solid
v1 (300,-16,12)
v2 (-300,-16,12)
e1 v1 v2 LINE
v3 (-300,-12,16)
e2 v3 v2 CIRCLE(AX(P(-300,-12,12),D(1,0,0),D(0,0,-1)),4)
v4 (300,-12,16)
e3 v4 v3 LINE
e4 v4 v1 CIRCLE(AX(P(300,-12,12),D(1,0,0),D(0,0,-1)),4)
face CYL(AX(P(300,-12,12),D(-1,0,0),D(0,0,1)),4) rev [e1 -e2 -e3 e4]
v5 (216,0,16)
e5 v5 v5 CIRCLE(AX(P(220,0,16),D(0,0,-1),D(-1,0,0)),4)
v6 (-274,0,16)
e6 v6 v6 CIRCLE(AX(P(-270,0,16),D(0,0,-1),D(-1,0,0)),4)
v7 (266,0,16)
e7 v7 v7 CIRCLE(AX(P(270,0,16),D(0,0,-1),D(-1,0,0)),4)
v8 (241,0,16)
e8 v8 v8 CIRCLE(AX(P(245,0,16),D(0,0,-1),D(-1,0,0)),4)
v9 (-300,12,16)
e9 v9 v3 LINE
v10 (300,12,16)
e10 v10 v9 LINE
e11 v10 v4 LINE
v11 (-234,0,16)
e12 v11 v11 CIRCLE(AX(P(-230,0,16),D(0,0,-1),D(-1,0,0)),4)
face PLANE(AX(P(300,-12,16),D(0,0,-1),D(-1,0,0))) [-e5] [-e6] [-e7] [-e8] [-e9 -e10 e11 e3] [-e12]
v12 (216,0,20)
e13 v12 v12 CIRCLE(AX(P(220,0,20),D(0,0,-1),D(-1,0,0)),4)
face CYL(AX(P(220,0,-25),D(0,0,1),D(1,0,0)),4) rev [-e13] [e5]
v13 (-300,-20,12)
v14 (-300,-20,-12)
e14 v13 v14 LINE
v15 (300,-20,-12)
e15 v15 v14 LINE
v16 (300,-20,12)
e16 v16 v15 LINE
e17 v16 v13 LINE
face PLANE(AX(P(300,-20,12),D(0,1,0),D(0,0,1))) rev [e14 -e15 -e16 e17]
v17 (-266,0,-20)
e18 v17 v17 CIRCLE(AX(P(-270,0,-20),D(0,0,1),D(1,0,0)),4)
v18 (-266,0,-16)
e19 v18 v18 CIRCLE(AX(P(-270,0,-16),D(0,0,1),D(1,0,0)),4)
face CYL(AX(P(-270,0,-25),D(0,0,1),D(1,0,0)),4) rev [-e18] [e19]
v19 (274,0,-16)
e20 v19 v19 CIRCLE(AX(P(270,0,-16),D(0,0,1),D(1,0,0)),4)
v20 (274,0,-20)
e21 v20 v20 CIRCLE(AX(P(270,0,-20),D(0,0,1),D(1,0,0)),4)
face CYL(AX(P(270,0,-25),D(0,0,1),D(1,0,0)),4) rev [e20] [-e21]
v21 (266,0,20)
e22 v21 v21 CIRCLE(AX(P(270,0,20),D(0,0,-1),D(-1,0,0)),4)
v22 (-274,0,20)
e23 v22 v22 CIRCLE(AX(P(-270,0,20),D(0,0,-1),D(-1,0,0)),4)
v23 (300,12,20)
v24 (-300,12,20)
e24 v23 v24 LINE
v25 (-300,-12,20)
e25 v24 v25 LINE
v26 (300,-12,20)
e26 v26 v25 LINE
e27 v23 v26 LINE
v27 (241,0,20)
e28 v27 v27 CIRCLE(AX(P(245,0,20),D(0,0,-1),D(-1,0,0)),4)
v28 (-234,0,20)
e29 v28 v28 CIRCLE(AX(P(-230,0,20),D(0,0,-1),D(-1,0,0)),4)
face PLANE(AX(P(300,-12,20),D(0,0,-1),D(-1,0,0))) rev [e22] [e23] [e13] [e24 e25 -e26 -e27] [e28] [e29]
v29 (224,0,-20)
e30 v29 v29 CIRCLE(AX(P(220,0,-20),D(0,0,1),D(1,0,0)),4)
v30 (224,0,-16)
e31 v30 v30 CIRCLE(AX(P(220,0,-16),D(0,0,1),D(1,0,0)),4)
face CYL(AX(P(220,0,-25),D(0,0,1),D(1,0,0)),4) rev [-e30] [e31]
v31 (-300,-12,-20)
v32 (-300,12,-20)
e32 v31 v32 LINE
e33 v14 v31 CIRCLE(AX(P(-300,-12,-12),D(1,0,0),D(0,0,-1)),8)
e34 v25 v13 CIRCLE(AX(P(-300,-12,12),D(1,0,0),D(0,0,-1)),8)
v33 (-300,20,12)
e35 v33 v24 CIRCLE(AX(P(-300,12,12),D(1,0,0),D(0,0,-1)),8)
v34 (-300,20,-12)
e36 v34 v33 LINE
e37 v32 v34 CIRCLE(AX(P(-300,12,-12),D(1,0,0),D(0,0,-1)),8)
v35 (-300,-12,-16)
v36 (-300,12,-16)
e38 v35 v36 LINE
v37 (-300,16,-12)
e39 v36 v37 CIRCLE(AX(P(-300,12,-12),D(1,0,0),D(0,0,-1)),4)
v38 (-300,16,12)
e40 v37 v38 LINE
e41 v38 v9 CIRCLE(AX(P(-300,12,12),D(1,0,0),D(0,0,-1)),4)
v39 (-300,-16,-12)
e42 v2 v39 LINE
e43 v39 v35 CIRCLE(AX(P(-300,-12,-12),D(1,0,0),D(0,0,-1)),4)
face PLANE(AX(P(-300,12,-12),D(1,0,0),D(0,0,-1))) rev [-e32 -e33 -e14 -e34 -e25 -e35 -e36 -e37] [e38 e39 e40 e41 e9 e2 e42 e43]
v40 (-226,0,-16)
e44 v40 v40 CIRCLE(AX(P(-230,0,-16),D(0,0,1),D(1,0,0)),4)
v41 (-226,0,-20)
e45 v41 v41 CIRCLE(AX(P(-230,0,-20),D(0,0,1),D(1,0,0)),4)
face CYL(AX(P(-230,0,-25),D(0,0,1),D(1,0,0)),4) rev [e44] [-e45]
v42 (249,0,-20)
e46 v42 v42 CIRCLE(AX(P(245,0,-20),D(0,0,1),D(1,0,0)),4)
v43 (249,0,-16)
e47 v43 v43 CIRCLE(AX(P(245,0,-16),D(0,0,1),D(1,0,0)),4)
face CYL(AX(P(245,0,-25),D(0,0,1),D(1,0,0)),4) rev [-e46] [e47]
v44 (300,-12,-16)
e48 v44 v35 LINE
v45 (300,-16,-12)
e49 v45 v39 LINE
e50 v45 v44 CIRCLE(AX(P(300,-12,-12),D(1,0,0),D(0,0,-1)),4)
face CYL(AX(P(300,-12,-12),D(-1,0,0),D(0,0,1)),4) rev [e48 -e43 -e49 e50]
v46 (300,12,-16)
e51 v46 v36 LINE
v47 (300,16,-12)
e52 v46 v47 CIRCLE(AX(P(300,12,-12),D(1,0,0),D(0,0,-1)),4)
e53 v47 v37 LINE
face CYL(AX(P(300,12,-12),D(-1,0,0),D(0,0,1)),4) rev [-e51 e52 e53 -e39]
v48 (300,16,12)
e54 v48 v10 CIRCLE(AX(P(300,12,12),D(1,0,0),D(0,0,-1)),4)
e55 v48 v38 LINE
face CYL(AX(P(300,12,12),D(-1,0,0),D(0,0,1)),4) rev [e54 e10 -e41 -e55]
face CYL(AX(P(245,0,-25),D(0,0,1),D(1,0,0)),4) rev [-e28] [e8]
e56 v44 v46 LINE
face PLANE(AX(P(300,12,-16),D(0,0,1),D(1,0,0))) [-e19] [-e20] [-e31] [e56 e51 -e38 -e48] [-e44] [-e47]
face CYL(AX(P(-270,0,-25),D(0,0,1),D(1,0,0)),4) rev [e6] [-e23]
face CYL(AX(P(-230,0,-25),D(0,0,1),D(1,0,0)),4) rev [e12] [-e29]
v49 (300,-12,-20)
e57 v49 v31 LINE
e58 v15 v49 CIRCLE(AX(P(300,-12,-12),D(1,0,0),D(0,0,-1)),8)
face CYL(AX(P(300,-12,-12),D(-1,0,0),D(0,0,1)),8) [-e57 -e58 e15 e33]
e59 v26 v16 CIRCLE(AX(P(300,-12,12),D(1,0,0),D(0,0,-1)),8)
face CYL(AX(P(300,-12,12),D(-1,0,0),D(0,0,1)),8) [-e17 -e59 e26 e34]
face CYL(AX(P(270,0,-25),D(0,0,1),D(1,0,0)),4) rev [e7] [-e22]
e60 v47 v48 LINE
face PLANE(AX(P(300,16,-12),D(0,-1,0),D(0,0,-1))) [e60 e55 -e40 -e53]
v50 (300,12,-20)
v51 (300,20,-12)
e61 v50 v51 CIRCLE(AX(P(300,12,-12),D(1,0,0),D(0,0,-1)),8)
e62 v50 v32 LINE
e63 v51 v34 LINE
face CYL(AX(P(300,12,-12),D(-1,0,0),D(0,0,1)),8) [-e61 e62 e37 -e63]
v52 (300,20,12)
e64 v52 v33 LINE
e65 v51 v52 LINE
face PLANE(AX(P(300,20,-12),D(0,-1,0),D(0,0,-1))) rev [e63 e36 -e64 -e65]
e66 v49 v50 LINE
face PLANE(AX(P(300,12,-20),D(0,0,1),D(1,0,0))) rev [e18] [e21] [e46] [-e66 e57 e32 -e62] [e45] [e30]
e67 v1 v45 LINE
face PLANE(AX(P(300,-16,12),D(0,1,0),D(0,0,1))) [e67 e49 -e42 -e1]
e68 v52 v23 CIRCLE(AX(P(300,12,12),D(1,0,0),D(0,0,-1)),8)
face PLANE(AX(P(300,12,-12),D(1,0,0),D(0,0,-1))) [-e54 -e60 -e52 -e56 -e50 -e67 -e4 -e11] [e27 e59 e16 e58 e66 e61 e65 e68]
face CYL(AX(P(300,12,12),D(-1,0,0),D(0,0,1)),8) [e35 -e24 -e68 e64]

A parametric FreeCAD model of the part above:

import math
import FreeCAD as App
import Part
import Sketcher
from FreeCAD import Vector

doc = App.newDocument("Part")
body = doc.addObject("PartDesign::Body", "Body")

# Sketch on YZ plane
sketch1 = body.newObject("Sketcher::SketchObject", "Sketch")
sketch1.AttachmentSupport = (doc.getObject("YZ_Plane"), [""])
sketch1.MapMode = "FlatFace"
sketch1.AttachmentOffset = App.Placement(Vector(0, 0, -300), App.Rotation())
sketch1.addGeometry(Part.LineSegment(Vector(-20, 12, 0), Vector(-20, -12, 0)), False)
sketch1.addGeometry(Part.ArcOfCircle(Part.Circle(Vector(-12, -12, 0), Vector(0, 0, 1), 8), math.radians(-180), math.radians(-90)), False)
sketch1.addGeometry(Part.LineSegment(Vector(-12, -20, 0), Vector(12, -20, 0)), False)
sketch1.addGeometry(Part.ArcOfCircle(Part.Circle(Vector(12, -12, 0), Vector(0, 0, 1), 8), math.radians(-90), math.radians(0)), False)
sketch1.addGeometry(Part.LineSegment(Vector(20, -12, 0), Vector(20, 12, 0)), False)
sketch1.addGeometry(Part.ArcOfCircle(Part.Circle(Vector(12, 12, 0), Vector(0, 0, 1), 8), math.radians(0), math.radians(90)), False)
sketch1.addGeometry(Part.LineSegment(Vector(12, 20, 0), Vector(-12, 20, 0)), False)
sketch1.addGeometry(Part.ArcOfCircle(Part.Circle(Vector(-12, 12, 0), Vector(0, 0, 1), 8), math.radians(90), math.radians(180)), False)
sketch1.addGeometry(Part.LineSegment(Vector(-16, -12, 0), Vector(-16, 12, 0)), False)
sketch1.addGeometry(Part.ArcOfCircle(Part.Circle(Vector(-12, 12, 0), Vector(0, 0, 1), 4), math.radians(90), math.radians(180)), False)
sketch1.addGeometry(Part.LineSegment(Vector(-12, 16, 0), Vector(12, 16, 0)), False)
sketch1.addGeometry(Part.ArcOfCircle(Part.Circle(Vector(12, 12, 0), Vector(0, 0, 1), 4), math.radians(0), math.radians(90)), False)
sketch1.addGeometry(Part.LineSegment(Vector(16, 12, 0), Vector(16, -12, 0)), False)
sketch1.addGeometry(Part.ArcOfCircle(Part.Circle(Vector(12, -12, 0), Vector(0, 0, 1), 4), math.radians(-90), math.radians(0)), False)
sketch1.addGeometry(Part.LineSegment(Vector(12, -16, 0), Vector(-12, -16, 0)), False)
sketch1.addGeometry(Part.ArcOfCircle(Part.Circle(Vector(-12, -12, 0), Vector(0, 0, 1), 4), math.radians(180), math.radians(270)), False)
sketch1.addConstraint(Sketcher.Constraint("Tangent", 0, 2, 1, 1))
sketch1.addConstraint(Sketcher.Constraint("Tangent", 1, 2, 2, 1))
sketch1.addConstraint(Sketcher.Constraint("Tangent", 2, 2, 3, 1))
sketch1.addConstraint(Sketcher.Constraint("Tangent", 3, 2, 4, 1))
sketch1.addConstraint(Sketcher.Constraint("Tangent", 4, 2, 5, 1))
sketch1.addConstraint(Sketcher.Constraint("Tangent", 5, 2, 6, 1))
sketch1.addConstraint(Sketcher.Constraint("Tangent", 6, 2, 7, 1))
sketch1.addConstraint(Sketcher.Constraint("Tangent", 7, 2, 0, 1))
sketch1.addConstraint(Sketcher.Constraint("Tangent", 8, 2, 9, 2))
sketch1.addConstraint(Sketcher.Constraint("Tangent", 9, 1, 10, 1))
sketch1.addConstraint(Sketcher.Constraint("Tangent", 10, 2, 11, 2))
sketch1.addConstraint(Sketcher.Constraint("Tangent", 11, 1, 12, 1))
sketch1.addConstraint(Sketcher.Constraint("Tangent", 12, 2, 13, 2))
sketch1.addConstraint(Sketcher.Constraint("Tangent", 13, 1, 14, 1))
sketch1.addConstraint(Sketcher.Constraint("Tangent", 14, 2, 15, 2))
sketch1.addConstraint(Sketcher.Constraint("Tangent", 15, 1, 8, 1))
sketch1.addConstraint(Sketcher.Constraint("Vertical", 0))
sketch1.addConstraint(Sketcher.Constraint("Horizontal", 2))
sketch1.addConstraint(Sketcher.Constraint("Vertical", 4))
sketch1.addConstraint(Sketcher.Constraint("Horizontal", 6))
sketch1.addConstraint(Sketcher.Constraint("Vertical", 8))
sketch1.addConstraint(Sketcher.Constraint("Horizontal", 10))
sketch1.addConstraint(Sketcher.Constraint("Vertical", 12))
sketch1.addConstraint(Sketcher.Constraint("Horizontal", 14))
sketch1.addConstraint(Sketcher.Constraint("Coincident", 9, 3, 7, 3))
sketch1.addConstraint(Sketcher.Constraint("Coincident", 11, 3, 5, 3))
sketch1.addConstraint(Sketcher.Constraint("Coincident", 13, 3, 3, 3))
sketch1.addConstraint(Sketcher.Constraint("Equal", 1, 3))
sketch1.addConstraint(Sketcher.Constraint("Equal", 3, 5))
sketch1.addConstraint(Sketcher.Constraint("Equal", 5, 7))
sketch1.addConstraint(Sketcher.Constraint("Equal", 13, 15))
sketch1.addConstraint(Sketcher.Constraint("Symmetric", 1, 3, 5, 3, -1, 1))
sketch1.addConstraint(Sketcher.Constraint("Equal", 14, 0))
sketch1.addConstraint(Sketcher.Constraint("Radius", 1, 8.0))
sketch1.addConstraint(Sketcher.Constraint("Radius", 9, 4.0))
sketch1.addConstraint(Sketcher.Constraint("DistanceX", 2, 1, 2, 2, 24.0))
pad1 = body.newObject("PartDesign::Pad", "Pad")
pad1.Profile = sketch1
pad1.Length = 600

# Sketch on XY plane
sketch2 = body.newObject("Sketcher::SketchObject", "Sketch001")
sketch2.AttachmentSupport = (doc.getObject("XY_Plane"), [""])
sketch2.MapMode = "FlatFace"
sketch2.addGeometry(Part.Circle(Vector(-270, 0, 0), Vector(0, 0, 1), 4), False)
sketch2.addGeometry(Part.Circle(Vector(-230, 0, 0), Vector(0, 0, 1), 4), False)
sketch2.addGeometry(Part.Circle(Vector(220, 0, 0), Vector(0, 0, 1), 4), False)
sketch2.addGeometry(Part.Circle(Vector(245, 0, 0), Vector(0, 0, 1), 4), False)
sketch2.addGeometry(Part.Circle(Vector(270, 0, 0), Vector(0, 0, 1), 4), False)
sketch2.addConstraint(Sketcher.Constraint("Equal", 0, 1))
sketch2.addConstraint(Sketcher.Constraint("Equal", 1, 2))
sketch2.addConstraint(Sketcher.Constraint("Equal", 2, 3))
sketch2.addConstraint(Sketcher.Constraint("Equal", 3, 4))
sketch2.addConstraint(Sketcher.Constraint("Symmetric", 0, 3, 4, 3, -1, 1))
sketch2.addConstraint(Sketcher.Constraint("PointOnObject", 0, 3, -1))
sketch2.addConstraint(Sketcher.Constraint("PointOnObject", 1, 3, -1))
sketch2.addConstraint(Sketcher.Constraint("PointOnObject", 2, 3, -1))
sketch2.addConstraint(Sketcher.Constraint("PointOnObject", 3, 3, -1))
sketch2.addConstraint(Sketcher.Constraint("Diameter", 0, 8.0))
sketch2.addConstraint(Sketcher.Constraint("DistanceX", 0, 3, -1, 1, 270.0))
sketch2.addConstraint(Sketcher.Constraint("DistanceX", 1, 3, -1, 1, 230.0))
sketch2.addConstraint(Sketcher.Constraint("DistanceX", -1, 1, 2, 3, 220.0))
sketch2.addConstraint(Sketcher.Constraint("DistanceX", -1, 1, 3, 3, 245.0))
pocket1 = body.newObject("PartDesign::Pocket", "Pocket")
pocket1.Profile = sketch2
pocket1.Length = 50
pocket1.Midplane = True

doc.recompute()
